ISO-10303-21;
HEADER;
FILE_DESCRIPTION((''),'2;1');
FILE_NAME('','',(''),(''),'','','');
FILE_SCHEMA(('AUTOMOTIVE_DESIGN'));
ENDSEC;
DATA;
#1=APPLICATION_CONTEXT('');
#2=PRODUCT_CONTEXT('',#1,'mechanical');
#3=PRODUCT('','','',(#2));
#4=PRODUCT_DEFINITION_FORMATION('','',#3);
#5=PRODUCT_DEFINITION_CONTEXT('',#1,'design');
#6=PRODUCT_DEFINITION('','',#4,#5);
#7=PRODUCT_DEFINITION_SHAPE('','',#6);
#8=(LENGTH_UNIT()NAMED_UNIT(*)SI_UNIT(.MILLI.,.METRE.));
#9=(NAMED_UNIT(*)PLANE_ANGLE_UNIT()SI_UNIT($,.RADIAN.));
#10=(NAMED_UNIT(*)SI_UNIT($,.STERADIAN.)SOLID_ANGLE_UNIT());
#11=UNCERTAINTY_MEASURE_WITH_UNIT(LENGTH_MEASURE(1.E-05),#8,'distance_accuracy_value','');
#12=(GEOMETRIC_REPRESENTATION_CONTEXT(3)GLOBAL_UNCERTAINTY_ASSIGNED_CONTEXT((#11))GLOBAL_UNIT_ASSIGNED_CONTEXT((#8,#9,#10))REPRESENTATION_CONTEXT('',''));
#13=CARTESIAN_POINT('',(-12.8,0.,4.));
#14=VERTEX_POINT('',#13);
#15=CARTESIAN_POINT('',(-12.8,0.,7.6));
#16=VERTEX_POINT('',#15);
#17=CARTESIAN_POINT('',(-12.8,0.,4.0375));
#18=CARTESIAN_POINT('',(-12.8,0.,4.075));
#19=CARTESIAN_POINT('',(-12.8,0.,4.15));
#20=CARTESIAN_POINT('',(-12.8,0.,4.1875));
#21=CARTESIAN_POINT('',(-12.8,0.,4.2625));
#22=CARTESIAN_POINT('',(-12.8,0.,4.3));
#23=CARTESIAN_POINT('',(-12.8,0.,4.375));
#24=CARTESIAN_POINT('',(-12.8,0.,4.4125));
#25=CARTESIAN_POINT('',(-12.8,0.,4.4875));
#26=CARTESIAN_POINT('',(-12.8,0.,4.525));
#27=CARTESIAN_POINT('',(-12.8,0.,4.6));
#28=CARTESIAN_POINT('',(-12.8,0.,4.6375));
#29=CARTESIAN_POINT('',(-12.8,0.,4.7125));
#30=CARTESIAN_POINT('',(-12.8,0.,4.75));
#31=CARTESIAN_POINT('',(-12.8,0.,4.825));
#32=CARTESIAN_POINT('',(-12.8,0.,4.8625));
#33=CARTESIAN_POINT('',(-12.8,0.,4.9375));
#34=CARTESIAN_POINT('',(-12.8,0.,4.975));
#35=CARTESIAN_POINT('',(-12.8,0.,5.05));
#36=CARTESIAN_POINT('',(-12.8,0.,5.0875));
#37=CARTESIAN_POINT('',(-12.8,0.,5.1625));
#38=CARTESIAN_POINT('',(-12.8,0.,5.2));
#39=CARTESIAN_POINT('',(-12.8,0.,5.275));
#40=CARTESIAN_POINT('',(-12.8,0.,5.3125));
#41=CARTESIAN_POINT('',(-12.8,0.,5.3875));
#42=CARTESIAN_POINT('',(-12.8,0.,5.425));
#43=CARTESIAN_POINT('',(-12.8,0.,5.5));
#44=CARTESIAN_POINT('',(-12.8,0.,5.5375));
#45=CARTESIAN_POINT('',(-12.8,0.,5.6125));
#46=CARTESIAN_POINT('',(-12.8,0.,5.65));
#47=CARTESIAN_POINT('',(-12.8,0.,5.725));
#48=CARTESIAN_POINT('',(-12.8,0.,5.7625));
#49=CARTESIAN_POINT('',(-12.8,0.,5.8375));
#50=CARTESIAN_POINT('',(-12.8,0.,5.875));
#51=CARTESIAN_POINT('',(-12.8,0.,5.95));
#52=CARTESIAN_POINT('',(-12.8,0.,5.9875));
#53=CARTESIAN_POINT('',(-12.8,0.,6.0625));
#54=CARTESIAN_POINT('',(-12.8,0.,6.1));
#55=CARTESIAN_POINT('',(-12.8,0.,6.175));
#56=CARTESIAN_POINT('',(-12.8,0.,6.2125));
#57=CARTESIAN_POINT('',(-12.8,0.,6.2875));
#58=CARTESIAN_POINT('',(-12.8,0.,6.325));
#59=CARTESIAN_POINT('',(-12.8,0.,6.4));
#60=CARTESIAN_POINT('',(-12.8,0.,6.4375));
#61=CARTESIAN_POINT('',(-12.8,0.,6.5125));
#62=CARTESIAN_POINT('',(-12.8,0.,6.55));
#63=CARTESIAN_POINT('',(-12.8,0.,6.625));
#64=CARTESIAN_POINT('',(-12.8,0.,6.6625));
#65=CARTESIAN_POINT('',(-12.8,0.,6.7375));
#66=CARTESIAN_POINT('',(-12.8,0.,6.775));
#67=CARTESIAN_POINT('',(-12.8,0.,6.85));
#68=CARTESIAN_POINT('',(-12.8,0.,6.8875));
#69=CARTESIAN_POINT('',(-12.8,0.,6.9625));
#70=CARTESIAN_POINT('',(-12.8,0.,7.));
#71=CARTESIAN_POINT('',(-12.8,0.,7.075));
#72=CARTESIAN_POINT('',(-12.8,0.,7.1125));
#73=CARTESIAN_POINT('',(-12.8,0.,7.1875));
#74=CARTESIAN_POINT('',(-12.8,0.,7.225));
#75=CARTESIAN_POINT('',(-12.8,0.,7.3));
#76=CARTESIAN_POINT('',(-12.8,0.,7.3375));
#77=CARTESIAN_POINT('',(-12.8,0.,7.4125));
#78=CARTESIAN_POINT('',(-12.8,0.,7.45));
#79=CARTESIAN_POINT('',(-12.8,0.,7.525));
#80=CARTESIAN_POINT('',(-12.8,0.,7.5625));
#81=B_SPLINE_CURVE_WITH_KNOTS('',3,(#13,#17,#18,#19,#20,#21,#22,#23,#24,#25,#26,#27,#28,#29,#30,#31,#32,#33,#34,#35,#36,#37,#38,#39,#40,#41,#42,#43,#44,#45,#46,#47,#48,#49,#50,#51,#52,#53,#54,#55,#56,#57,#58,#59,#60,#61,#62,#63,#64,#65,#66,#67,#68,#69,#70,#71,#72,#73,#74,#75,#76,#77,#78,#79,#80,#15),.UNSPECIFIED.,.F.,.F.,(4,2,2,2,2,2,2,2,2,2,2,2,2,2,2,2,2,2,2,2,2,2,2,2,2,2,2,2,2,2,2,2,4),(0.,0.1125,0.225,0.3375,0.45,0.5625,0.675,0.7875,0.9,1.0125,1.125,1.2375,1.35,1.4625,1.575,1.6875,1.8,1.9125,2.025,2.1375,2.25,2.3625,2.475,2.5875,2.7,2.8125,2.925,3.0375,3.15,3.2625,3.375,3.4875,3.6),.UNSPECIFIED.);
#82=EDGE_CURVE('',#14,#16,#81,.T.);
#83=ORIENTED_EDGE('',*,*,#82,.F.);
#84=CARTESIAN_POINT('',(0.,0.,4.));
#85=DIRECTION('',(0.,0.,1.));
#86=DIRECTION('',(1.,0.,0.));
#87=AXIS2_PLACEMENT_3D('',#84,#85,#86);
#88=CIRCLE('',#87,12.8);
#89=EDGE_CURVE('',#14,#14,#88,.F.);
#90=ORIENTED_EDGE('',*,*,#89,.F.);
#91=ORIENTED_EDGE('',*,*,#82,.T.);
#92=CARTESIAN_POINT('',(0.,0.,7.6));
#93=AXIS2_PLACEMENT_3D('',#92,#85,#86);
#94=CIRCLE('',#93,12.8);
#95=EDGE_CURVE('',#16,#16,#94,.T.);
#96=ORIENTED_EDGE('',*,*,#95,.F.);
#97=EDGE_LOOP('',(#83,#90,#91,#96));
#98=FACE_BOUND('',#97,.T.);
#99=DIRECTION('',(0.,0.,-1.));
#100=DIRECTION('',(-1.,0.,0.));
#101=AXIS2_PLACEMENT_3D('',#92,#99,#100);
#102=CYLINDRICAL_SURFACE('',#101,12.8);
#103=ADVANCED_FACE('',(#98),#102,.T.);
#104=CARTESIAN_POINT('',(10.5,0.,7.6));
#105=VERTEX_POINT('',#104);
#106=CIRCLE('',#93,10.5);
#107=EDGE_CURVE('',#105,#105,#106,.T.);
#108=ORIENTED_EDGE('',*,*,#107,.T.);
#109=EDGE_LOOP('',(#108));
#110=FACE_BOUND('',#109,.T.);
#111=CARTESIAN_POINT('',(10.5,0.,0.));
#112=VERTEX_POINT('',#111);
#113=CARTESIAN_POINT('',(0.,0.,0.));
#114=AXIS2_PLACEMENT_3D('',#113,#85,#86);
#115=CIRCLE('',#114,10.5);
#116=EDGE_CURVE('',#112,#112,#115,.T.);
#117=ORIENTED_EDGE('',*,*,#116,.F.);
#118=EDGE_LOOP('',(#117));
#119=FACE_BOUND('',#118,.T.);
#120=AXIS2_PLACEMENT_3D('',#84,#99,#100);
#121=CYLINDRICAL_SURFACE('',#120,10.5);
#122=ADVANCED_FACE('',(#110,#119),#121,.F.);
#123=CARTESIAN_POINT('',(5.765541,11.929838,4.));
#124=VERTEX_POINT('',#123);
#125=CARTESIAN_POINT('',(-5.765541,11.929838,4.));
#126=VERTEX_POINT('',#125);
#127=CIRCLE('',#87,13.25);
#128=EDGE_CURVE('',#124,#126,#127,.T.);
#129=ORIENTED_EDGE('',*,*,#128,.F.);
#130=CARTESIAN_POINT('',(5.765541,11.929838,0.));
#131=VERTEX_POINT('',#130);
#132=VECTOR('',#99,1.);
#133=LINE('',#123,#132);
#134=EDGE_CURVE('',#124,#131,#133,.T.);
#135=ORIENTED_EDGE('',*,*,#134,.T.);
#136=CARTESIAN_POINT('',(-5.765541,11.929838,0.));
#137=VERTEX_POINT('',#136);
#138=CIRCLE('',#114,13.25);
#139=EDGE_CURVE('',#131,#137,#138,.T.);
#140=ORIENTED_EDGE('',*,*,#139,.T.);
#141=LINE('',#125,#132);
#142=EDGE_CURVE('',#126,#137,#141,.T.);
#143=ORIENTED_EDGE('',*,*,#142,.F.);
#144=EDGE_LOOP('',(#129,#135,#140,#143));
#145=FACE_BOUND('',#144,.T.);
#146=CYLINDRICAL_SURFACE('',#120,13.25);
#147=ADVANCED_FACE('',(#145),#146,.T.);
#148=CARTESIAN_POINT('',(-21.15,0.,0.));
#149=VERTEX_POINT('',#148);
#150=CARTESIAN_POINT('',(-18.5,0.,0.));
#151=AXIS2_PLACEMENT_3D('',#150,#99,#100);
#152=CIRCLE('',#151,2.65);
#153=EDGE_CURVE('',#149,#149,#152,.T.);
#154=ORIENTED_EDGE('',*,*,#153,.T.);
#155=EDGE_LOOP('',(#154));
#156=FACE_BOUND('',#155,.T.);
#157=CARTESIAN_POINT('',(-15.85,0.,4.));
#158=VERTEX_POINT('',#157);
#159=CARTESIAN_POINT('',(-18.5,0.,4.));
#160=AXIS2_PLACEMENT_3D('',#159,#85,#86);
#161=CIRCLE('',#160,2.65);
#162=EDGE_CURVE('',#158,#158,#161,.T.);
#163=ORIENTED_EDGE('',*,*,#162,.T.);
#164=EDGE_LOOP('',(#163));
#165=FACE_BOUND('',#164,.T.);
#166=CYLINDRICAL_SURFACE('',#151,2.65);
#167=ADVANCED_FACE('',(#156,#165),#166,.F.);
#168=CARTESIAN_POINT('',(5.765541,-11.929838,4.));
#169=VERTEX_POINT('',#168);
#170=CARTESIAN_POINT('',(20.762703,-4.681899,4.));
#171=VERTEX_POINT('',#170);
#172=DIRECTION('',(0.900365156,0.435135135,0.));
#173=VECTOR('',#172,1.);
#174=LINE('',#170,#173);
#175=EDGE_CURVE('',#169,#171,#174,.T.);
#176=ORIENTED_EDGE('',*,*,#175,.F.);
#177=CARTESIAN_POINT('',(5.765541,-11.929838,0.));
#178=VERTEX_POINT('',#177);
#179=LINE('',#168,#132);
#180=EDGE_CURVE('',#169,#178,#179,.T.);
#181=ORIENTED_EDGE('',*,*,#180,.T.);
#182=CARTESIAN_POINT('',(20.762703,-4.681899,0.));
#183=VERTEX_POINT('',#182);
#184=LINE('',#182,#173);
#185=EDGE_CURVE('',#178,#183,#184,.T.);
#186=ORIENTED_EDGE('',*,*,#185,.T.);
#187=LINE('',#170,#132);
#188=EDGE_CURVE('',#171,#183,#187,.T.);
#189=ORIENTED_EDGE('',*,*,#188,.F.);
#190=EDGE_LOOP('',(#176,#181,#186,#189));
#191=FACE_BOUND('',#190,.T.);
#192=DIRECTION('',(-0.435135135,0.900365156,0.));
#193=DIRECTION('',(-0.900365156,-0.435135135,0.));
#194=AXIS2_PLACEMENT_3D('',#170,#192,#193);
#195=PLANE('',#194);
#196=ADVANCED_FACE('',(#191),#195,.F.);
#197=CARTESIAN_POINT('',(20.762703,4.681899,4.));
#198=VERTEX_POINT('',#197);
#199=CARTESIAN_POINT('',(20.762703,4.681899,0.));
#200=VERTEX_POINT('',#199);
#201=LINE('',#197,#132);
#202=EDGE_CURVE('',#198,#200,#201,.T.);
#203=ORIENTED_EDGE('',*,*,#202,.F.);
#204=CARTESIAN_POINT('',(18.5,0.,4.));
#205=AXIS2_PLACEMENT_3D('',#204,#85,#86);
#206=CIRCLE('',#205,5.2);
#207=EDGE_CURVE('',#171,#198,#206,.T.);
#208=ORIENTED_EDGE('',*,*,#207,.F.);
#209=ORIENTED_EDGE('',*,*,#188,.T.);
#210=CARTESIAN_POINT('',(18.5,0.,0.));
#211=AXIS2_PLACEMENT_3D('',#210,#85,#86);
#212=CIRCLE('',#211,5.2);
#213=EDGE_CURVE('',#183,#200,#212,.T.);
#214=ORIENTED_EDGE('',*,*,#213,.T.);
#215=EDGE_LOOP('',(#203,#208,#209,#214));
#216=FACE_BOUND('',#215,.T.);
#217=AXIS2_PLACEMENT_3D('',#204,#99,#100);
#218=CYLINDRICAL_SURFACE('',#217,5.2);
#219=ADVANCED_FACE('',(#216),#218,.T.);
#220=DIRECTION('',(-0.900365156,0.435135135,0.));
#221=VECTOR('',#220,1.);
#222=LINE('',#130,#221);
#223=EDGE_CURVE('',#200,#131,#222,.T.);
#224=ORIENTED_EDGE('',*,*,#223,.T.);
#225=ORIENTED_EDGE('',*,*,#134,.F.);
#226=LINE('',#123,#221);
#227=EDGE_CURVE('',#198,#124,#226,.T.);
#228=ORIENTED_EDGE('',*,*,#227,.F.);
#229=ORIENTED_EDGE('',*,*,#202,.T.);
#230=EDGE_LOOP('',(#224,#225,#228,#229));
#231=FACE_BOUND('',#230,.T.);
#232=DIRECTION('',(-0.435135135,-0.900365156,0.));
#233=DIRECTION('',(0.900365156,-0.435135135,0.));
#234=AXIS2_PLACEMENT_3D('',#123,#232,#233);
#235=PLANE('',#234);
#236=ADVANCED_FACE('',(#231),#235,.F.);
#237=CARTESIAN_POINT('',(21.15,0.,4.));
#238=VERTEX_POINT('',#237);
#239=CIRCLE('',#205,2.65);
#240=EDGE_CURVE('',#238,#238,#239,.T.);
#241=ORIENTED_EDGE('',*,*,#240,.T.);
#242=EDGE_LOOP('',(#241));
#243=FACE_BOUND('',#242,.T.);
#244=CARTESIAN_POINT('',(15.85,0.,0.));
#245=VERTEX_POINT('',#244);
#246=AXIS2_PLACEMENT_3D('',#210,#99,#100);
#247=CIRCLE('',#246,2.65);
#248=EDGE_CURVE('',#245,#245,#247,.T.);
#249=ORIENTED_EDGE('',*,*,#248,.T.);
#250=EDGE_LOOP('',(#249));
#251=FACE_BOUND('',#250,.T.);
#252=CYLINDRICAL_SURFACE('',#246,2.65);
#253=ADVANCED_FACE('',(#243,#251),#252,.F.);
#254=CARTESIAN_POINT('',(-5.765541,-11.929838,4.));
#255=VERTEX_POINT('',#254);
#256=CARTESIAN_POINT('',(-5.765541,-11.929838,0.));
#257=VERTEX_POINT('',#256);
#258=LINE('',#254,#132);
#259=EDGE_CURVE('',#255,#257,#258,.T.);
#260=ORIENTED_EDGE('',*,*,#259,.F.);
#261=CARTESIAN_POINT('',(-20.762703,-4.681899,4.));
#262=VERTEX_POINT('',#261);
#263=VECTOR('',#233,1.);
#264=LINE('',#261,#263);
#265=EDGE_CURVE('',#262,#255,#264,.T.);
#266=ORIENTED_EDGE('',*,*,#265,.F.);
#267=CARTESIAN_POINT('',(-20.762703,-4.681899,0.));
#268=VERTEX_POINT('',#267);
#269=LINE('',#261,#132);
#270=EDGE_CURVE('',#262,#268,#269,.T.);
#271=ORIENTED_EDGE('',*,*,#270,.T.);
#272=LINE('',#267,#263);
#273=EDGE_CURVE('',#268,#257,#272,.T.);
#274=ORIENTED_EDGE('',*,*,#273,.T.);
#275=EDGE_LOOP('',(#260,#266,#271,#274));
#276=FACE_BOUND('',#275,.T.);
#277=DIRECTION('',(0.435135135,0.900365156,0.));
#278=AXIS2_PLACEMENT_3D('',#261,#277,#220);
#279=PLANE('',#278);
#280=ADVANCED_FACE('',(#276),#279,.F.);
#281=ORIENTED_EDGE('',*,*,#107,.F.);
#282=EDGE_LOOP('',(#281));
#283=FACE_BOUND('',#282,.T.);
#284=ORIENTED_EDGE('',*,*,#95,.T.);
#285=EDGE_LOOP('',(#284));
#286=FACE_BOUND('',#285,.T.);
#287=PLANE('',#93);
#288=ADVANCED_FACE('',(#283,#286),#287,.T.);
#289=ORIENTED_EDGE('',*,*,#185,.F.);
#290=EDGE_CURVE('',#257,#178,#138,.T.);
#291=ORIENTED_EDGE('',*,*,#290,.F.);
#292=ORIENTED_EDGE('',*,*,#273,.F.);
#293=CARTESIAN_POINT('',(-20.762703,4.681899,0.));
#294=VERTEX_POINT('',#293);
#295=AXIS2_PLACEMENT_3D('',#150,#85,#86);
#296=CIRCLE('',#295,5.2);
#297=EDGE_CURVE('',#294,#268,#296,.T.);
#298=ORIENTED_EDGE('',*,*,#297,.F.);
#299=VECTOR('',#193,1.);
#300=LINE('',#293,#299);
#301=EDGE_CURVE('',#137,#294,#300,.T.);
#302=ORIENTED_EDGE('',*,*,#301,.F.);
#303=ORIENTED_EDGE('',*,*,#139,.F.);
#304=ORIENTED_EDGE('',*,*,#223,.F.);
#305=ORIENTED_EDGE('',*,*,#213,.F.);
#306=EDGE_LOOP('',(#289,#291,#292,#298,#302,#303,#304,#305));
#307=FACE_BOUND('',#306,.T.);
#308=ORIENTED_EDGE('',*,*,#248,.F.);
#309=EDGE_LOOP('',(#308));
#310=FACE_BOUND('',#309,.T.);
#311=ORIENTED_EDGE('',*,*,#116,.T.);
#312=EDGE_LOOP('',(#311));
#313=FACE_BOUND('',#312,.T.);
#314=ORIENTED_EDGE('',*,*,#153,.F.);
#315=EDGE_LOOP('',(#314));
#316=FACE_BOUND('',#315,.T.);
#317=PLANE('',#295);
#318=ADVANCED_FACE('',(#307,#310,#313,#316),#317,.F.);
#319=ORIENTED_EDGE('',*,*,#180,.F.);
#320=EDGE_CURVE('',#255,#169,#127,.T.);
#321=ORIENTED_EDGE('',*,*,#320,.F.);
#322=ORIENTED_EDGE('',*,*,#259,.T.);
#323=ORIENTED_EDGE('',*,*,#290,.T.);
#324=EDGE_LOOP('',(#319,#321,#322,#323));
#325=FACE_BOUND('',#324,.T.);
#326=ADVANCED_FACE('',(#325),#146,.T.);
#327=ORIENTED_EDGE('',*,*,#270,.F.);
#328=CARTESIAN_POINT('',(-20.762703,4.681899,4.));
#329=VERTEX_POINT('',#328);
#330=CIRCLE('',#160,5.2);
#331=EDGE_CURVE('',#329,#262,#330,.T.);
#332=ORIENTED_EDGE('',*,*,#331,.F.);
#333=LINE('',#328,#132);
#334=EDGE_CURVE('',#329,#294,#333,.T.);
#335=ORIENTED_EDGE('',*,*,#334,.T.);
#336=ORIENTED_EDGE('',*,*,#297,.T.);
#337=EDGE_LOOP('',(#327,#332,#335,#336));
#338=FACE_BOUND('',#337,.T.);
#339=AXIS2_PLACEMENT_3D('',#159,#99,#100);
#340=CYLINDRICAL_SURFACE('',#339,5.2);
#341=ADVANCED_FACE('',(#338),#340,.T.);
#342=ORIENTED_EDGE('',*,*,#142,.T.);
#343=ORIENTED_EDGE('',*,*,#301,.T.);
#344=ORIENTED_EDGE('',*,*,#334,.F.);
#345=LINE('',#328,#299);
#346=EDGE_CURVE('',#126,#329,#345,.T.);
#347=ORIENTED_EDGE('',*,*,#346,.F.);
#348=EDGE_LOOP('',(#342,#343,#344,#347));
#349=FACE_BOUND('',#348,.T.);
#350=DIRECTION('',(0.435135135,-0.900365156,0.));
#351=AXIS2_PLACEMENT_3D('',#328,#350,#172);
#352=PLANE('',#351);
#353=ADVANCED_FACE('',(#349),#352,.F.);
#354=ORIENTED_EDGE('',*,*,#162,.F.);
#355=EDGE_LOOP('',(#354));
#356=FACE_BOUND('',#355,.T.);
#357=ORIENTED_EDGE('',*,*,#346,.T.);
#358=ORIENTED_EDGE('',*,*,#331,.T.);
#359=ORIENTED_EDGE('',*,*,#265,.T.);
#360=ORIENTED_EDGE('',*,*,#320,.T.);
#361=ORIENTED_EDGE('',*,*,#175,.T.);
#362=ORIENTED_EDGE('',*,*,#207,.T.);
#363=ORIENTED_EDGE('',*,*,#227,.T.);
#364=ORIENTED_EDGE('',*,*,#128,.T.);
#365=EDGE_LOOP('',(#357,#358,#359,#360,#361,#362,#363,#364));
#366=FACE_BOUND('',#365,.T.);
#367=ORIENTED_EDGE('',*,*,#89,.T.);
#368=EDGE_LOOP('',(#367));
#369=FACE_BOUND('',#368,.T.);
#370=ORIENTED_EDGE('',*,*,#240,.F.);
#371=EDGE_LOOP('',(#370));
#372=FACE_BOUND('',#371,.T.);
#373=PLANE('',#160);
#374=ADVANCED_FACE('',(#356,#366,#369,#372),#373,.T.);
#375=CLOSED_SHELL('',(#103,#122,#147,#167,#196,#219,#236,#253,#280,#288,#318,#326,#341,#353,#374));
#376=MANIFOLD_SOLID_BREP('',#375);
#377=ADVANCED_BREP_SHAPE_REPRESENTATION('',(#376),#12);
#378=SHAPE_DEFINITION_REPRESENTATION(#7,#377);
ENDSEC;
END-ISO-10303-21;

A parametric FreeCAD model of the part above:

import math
import FreeCAD as App
import Part
import Sketcher

V = App.Vector
Q = App.Units.Quantity

doc = App.newDocument("Part")
body = doc.addObject("PartDesign::Body", "Body")

# Sketch on XY plane
sketch1 = body.newObject("Sketcher::SketchObject", "Sketch")
sketch1.AttachmentSupport = (doc.getObject("XY_Plane"), [""])
sketch1.MapMode = "FlatFace"
sketch1.addGeometry(Part.LineSegment(V(-6, 12, 0), V(-21, 5, 0)), False)
sketch1.addGeometry(Part.ArcOfCircle(Part.Circle(V(-18, 0, 0), V(0, 0, 1), 5), math.radians(116), math.radians(244)), False)
sketch1.addGeometry(Part.LineSegment(V(-21, -5, 0), V(-6, -12, 0)), False)
sketch1.addGeometry(Part.ArcOfCircle(Part.Circle(V(0, 0, 0), V(0, 0, 1), 13), math.radians(-116), math.radians(-64)), False)
sketch1.addGeometry(Part.LineSegment(V(6, -12, 0), V(21, -5, 0)), False)
sketch1.addGeometry(Part.ArcOfCircle(Part.Circle(V(18, 0, 0), V(0, 0, 1), 5), math.radians(-64), math.radians(64)), False)
sketch1.addGeometry(Part.LineSegment(V(21, 5, 0), V(6, 12, 0)), False)
sketch1.addGeometry(Part.ArcOfCircle(Part.Circle(V(0, 0, 0), V(0, 0, 1), 13), math.radians(64), math.radians(116)), False)
sketch1.addGeometry(Part.Circle(V(0, 0, 0), V(0, 0, 1), 10), False)
sketch1.addConstraint(Sketcher.Constraint("Tangent", 0, 2, 1, 1))
sketch1.addConstraint(Sketcher.Constraint("Tangent", 1, 2, 2, 1))
sketch1.addConstraint(Sketcher.Constraint("Tangent", 2, 2, 3, 1))
sketch1.addConstraint(Sketcher.Constraint("Tangent", 3, 2, 4, 1))
sketch1.addConstraint(Sketcher.Constraint("Tangent", 4, 2, 5, 1))
sketch1.addConstraint(Sketcher.Constraint("Tangent", 5, 2, 6, 1))
sketch1.addConstraint(Sketcher.Constraint("Tangent", 6, 2, 7, 1))
sketch1.addConstraint(Sketcher.Constraint("Tangent", 7, 2, 0, 1))
sketch1.addConstraint(Sketcher.Constraint("Coincident", 3, 3, -1, 1))
sketch1.addConstraint(Sketcher.Constraint("Coincident", 7, 3, -1, 1))
sketch1.addConstraint(Sketcher.Constraint("Coincident", 8, 3, -1, 1))
sketch1.addConstraint(Sketcher.Constraint("Equal", 1, 5))
sketch1.addConstraint(Sketcher.Constraint("Equal", 3, 7))
sketch1.addConstraint(Sketcher.Constraint("Symmetric", 1, 3, 5, 3, -1, 1))
sketch1.addConstraint(Sketcher.Constraint("PointOnObject", 1, 3, -1))
sketch1.addConstraint(Sketcher.Constraint("Diameter", 8, Q("21 mm")))
sketch1.addConstraint(Sketcher.Constraint("Radius", 1, Q("5.2 mm")))
sketch1.addConstraint(Sketcher.Constraint("Radius", 3, Q("13.25 mm")))
sketch1.addConstraint(Sketcher.Constraint("DistanceX", 1, 3, 5, 3, Q("37 mm")))
pad1 = body.newObject("PartDesign::Pad", "Pad")
pad1.Profile = sketch1
pad1.Length = 4

# Sketch on XY plane
sketch2 = body.newObject("Sketcher::SketchObject", "Sketch001")
sketch2.AttachmentSupport = (doc.getObject("XY_Plane"), [""])
sketch2.MapMode = "FlatFace"
sketch2.addGeometry(Part.Circle(V(0, 0, 0), V(0, 0, 1), 13), False)
sketch2.addGeometry(Part.Circle(V(0, 0, 0), V(0, 0, 1), 10), False)
sketch2.addConstraint(Sketcher.Constraint("Coincident", 0, 3, -1, 1))
sketch2.addConstraint(Sketcher.Constraint("Coincident", 1, 3, -1, 1))
sketch2.addConstraint(Sketcher.Constraint("Diameter", 1, Q("21 mm")))
sketch2.addConstraint(Sketcher.Constraint("Diameter", 0, Q("25.6 mm")))
pad2 = body.newObject("PartDesign::Pad", "Pad001")
pad2.Profile = sketch2
pad2.Length = 7.6

# Sketch on XY plane
sketch3 = body.newObject("Sketcher::SketchObject", "Sketch002")
sketch3.AttachmentSupport = (doc.getObject("XY_Plane"), [""])
sketch3.MapMode = "FlatFace"
sketch3.addGeometry(Part.Circle(V(-18.5, 0, 0), V(0, 0, 1), 2.6), False)
sketch3.addGeometry(Part.Circle(V(18.5, 0, 0), V(0, 0, 1), 2.6), False)
sketch3.addConstraint(Sketcher.Constraint("Equal", 0, 1))
sketch3.addConstraint(Sketcher.Constraint("Symmetric", 0, 3, 1, 3, -1, 1))
sketch3.addConstraint(Sketcher.Constraint("PointOnObject", 0, 3, -1))
sketch3.addConstraint(Sketcher.Constraint("Diameter", 0, Q("5.3 mm")))
sketch3.addConstraint(Sketcher.Constraint("DistanceX", 0, 3, 1, 3, Q("37 mm")))
doc.recompute()
hole = body.newObject("PartDesign::Hole", "Hole")
hole.Profile = sketch3
hole.ThreadType = "None"
hole.Diameter = 5.3
hole.DepthType = "ThroughAll"
hole.Reversed = True

doc.recompute()
